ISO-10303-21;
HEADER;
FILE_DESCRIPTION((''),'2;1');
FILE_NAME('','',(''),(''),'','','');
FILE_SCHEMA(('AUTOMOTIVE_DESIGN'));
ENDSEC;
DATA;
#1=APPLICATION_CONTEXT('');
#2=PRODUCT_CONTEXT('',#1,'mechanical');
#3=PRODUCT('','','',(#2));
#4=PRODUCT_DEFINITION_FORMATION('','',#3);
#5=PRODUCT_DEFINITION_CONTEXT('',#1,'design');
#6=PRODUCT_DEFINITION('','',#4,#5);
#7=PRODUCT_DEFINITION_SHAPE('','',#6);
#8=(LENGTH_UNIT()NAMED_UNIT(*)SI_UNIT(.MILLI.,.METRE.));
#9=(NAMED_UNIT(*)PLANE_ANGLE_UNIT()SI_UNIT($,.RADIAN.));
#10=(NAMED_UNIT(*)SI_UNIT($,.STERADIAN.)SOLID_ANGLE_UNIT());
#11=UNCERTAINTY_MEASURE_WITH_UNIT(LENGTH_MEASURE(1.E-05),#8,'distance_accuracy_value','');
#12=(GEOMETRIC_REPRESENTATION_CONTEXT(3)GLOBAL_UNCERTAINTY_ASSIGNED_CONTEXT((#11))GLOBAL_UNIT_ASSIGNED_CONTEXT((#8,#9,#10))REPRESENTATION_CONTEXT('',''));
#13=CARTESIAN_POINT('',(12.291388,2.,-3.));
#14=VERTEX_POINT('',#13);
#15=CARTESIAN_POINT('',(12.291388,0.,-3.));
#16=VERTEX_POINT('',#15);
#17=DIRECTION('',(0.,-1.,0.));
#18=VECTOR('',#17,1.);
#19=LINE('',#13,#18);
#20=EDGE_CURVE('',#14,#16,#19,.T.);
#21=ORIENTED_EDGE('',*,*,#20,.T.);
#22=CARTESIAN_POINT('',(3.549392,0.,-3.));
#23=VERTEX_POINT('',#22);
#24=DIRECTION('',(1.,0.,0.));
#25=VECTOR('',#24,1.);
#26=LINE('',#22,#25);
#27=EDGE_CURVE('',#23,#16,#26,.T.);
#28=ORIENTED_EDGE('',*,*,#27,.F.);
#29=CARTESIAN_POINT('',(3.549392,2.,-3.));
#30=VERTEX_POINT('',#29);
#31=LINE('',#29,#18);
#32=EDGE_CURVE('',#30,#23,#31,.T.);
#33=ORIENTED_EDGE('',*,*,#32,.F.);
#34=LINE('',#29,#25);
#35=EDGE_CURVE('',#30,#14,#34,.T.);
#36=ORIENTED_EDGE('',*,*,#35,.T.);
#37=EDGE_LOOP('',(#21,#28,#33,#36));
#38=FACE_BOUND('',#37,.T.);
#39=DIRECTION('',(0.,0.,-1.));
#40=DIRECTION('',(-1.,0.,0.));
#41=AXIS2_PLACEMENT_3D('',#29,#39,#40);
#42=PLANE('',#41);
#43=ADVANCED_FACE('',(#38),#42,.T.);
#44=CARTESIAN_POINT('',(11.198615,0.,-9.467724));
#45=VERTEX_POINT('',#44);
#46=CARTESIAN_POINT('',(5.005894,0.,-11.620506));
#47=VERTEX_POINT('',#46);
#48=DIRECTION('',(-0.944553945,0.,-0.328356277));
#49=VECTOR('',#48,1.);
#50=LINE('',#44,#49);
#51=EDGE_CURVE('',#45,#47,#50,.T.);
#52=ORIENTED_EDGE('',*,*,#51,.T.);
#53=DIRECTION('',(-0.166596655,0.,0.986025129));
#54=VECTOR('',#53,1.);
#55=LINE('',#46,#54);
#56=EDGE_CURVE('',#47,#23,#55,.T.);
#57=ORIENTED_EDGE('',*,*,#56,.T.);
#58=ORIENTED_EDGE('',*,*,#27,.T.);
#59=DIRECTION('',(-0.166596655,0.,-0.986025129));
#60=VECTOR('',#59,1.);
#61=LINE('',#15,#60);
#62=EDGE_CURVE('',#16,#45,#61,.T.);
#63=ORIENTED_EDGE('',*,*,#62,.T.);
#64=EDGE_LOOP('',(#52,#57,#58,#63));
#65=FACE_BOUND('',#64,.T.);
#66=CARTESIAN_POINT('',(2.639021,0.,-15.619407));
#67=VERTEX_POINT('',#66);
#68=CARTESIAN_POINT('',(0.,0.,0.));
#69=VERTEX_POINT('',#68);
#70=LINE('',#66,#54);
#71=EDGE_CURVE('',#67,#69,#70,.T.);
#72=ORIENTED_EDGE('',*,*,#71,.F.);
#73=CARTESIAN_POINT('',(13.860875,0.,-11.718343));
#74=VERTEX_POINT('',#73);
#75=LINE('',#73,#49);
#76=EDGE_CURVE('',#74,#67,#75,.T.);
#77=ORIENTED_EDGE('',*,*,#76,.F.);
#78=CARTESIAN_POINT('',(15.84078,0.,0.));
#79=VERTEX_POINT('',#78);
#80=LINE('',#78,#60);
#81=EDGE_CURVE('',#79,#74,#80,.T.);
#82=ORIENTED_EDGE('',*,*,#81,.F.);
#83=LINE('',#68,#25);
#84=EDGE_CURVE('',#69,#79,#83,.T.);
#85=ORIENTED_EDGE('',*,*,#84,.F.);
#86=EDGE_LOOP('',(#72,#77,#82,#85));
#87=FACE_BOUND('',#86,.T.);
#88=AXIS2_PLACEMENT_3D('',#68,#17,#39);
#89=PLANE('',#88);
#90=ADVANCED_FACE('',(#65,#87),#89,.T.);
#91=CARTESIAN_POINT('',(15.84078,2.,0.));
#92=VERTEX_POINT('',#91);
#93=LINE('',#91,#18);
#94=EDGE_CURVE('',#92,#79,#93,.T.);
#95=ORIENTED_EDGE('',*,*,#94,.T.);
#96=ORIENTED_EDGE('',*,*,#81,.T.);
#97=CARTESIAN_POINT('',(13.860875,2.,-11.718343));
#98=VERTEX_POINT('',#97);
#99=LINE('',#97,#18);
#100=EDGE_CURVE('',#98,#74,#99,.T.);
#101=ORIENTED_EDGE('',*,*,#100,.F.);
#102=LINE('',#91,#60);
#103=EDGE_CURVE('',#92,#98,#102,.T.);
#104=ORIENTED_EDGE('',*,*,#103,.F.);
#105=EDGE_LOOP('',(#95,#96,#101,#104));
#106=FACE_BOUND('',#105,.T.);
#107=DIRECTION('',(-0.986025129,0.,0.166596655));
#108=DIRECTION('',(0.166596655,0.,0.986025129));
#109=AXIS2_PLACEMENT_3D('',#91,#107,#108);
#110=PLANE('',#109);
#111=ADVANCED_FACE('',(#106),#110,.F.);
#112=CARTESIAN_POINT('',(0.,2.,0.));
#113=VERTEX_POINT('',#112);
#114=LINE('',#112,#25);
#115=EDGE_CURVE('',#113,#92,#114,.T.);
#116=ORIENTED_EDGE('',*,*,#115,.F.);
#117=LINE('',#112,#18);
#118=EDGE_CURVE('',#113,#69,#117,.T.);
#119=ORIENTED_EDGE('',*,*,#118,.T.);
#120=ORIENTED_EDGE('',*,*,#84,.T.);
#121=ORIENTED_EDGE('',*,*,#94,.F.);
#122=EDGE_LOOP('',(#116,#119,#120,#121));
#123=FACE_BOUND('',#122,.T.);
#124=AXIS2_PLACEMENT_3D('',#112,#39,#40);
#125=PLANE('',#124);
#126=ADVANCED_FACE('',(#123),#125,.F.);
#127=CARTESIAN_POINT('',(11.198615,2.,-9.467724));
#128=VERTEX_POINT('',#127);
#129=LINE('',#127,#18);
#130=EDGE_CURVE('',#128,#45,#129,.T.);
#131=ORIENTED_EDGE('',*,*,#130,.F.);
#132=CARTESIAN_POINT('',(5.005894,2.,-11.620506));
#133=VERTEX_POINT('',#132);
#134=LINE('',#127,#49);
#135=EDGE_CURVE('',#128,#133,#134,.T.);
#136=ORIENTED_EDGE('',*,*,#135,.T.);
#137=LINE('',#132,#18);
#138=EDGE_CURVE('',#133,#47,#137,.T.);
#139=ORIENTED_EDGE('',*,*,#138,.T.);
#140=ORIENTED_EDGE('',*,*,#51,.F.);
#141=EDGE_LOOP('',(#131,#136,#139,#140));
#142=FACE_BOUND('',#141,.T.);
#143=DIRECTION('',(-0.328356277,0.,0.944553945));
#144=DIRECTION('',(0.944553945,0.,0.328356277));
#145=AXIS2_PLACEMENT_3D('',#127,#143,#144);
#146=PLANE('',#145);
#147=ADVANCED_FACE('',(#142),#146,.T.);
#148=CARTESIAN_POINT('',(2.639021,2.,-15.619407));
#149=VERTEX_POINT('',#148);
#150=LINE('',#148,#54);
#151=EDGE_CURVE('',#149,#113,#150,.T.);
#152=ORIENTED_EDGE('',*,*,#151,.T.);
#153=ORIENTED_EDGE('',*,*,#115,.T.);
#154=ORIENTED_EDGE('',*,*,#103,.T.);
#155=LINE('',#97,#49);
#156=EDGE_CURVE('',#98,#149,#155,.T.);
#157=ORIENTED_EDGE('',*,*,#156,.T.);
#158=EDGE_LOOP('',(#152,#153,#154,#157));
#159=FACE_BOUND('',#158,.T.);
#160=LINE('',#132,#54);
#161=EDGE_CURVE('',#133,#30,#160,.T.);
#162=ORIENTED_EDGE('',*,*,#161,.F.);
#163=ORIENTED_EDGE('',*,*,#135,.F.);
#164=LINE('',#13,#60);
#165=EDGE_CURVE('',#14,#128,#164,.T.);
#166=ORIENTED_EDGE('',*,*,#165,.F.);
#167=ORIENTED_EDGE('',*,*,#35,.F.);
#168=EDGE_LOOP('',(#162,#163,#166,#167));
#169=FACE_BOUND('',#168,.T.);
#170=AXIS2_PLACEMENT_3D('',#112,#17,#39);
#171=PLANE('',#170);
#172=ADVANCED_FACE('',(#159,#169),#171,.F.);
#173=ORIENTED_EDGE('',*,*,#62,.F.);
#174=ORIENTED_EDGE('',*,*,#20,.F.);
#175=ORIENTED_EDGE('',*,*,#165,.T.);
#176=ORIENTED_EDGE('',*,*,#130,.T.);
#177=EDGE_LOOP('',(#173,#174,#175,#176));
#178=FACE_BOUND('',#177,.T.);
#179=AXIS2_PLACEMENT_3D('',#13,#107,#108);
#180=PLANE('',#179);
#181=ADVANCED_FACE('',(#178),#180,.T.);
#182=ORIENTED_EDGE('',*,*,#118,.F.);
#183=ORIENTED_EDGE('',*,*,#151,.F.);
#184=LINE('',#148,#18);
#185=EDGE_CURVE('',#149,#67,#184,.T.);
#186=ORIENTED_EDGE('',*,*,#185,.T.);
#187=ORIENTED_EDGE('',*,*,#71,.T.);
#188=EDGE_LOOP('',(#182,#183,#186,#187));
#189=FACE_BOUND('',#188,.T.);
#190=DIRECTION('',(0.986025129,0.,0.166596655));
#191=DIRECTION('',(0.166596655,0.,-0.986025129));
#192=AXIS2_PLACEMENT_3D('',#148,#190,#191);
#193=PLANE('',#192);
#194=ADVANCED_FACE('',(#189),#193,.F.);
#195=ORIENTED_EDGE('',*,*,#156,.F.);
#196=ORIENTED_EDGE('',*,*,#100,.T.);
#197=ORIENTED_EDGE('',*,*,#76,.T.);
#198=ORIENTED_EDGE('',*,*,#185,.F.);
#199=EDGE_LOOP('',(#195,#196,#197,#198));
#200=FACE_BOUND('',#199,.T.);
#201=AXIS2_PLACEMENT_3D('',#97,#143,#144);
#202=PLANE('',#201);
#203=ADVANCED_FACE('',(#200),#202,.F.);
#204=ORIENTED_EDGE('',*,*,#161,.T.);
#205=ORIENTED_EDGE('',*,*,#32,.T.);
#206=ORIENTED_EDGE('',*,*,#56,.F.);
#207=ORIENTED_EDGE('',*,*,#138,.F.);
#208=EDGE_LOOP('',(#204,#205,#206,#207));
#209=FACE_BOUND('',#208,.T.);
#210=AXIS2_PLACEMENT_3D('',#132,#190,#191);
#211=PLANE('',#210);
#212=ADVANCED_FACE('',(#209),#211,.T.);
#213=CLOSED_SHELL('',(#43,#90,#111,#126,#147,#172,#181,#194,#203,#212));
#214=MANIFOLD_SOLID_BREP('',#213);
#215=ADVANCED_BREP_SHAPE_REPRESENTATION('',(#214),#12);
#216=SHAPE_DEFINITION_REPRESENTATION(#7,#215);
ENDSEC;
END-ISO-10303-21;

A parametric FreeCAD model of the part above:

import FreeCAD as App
import Part
import Sketcher
from FreeCAD import Vector
Q = App.Units.Quantity


def add_polygon(sketch, points):
    """Adds a closed chain of lines whose ends are joined by coincident constraints."""
    first, n = sketch.GeometryCount, len(points)
    for a, b in zip(points, points[1:] + points[:1]):
        sketch.addGeometry(Part.LineSegment(App.Vector(*a, 0), App.Vector(*b, 0)), False)
    for i in range(n):
        sketch.addConstraint(Sketcher.Constraint("Coincident", first + i, 2, first + (i + 1) % n, 1))

doc = App.newDocument("Part")
body = doc.addObject("PartDesign::Body", "Body")

# Sketch on XZ plane
sketch1 = doc.addObject("Sketcher::SketchObject", "Sketch")
body.addObject(sketch1)
sketch1.AttachmentSupport = (doc.XZ_Plane, [""])
sketch1.MapMode = "FlatFace"
add_polygon(sketch1, [(0, 0), (15.84078, 0), (13.860875, -11.718343), (2.639021, -15.619407)])  # lines 0-3
add_polygon(sketch1, [(3.549392, -3), (5.005894, -11.620506), (11.198615, -9.467724), (12.291388, -3)])  # lines 4-7
sketch1.addConstraint(Sketcher.Constraint("Horizontal", 0))
sketch1.addConstraint(Sketcher.Constraint("Horizontal", 7))
sketch1.addConstraint(Sketcher.Constraint("Coincident", 3, 2, -1, 1))
sketch1.addConstraint(Sketcher.Constraint("Parallel", 3, 4))
sketch1.addConstraint(Sketcher.Constraint("Parallel", 2, 5))
sketch1.addConstraint(Sketcher.Constraint("Parallel", 1, 6))
sketch1.addConstraint(Sketcher.Constraint("DistanceY", 6, 2, -1, 1, 3.0))
sketch1.addConstraint(Sketcher.Constraint("Angle", 1, Q("-99.59 deg")))
sketch1.addConstraint(Sketcher.Constraint("Angle", 3, Q("99.59 deg")))
sketch1.addConstraint(Sketcher.Constraint("DistanceX", 0, 1, 0, 2, 15.84078))
sketch1.addConstraint(Sketcher.Constraint("DistanceY", 2, 2, 4, 2, 3.998901))
sketch1.addConstraint(Sketcher.Constraint("DistanceX", 7, 2, 4, 2, 1.456502))
sketch1.addConstraint(Sketcher.Constraint("Distance", 5, 6.556239))
sketch1.addConstraint(Sketcher.Constraint("Distance", 6, 6.559391))
sketch1.addConstraint(Sketcher.Constraint("DistanceX", 4, 2, 1, 2, 8.85498))
pad1 = doc.addObject("PartDesign::Pad", "Pad")
body.addObject(pad1)
pad1.Profile = sketch1
pad1.Length = 2
pad1.Reversed = True

doc.recompute()
